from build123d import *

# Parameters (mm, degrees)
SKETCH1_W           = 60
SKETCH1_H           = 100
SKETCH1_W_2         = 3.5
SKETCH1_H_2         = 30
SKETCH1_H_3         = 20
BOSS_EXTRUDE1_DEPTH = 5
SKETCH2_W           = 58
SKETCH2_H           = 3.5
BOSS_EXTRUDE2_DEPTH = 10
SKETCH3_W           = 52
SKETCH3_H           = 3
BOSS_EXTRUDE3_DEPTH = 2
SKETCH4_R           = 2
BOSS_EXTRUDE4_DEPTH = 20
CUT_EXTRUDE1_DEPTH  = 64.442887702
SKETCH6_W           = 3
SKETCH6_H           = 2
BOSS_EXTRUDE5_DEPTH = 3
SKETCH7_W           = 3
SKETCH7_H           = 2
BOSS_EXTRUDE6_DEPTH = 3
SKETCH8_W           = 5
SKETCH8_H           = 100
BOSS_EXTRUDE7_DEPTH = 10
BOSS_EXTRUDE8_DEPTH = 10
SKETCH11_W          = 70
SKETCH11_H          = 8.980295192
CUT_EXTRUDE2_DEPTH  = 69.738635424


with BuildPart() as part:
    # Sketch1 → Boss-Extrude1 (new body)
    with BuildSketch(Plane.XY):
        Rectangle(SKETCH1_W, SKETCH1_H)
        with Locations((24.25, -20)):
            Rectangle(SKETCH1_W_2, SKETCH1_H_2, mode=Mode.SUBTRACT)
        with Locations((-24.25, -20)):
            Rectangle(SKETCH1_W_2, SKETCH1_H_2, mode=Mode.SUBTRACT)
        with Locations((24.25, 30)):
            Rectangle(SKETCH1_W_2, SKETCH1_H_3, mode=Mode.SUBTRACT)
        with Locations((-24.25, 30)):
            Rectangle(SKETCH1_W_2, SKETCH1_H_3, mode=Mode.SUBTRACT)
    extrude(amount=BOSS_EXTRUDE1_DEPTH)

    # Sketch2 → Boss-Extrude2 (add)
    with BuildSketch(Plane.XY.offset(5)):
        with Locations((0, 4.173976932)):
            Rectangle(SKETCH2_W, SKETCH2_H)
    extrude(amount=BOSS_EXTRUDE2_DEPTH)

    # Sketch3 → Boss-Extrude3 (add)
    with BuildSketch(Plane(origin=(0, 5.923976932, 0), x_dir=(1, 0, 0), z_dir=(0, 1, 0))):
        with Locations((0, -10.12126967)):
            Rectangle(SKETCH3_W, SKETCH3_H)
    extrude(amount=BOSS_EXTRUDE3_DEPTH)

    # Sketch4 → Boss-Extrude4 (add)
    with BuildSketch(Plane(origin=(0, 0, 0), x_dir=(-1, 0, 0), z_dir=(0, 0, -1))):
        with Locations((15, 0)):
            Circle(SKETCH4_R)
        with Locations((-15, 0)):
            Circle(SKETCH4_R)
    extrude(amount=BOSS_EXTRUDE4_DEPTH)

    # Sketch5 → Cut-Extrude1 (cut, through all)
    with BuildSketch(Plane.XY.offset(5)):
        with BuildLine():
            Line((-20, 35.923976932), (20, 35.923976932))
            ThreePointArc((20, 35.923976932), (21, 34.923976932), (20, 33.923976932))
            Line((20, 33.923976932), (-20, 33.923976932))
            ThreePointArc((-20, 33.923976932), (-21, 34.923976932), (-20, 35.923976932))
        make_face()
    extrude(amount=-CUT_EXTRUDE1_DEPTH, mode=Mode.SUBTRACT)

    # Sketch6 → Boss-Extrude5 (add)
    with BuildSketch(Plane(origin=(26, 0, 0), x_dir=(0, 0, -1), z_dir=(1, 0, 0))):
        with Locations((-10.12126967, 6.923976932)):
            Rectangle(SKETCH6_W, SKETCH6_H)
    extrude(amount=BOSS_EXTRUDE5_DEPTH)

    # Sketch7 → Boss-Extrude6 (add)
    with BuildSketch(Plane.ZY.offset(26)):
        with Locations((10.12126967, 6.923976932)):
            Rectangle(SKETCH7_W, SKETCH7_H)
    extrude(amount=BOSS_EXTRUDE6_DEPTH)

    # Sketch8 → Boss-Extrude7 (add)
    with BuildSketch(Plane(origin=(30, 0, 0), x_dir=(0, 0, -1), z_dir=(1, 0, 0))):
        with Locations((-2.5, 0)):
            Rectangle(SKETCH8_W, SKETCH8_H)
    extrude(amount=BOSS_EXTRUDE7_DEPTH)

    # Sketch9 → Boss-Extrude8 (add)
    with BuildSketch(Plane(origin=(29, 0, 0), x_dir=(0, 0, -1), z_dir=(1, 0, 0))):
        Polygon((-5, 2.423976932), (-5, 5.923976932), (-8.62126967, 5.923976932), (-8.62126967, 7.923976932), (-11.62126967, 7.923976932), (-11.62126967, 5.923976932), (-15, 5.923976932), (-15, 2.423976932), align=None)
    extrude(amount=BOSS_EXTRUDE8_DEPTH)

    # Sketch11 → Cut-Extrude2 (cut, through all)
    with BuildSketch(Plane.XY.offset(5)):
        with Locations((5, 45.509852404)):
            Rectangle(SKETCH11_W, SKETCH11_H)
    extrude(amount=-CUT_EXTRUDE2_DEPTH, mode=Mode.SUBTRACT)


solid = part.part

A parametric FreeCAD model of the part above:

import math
import FreeCAD as App
import Part
import Sketcher


def add_polygon(sketch, points):
    """Adds a closed chain of lines whose ends are joined by coincident constraints."""
    first, n = sketch.GeometryCount, len(points)
    for a, b in zip(points, points[1:] + points[:1]):
        sketch.addGeometry(Part.LineSegment(App.Vector(*a, 0), App.Vector(*b, 0)), False)
    for i in range(n):
        sketch.addConstraint(Sketcher.Constraint("Coincident", first + i, 2, first + (i + 1) % n, 1))

doc = App.newDocument("Part")
body = doc.addObject("PartDesign::Body", "Body")

sketch1 = doc.addObject("Sketcher::SketchObject", "Sketch")
body.addObject(sketch1)
sketch1.AttachmentSupport = (doc.XY_Plane, [""])
sketch1.MapMode = "FlatFace"
add_polygon(sketch1, [(-30, 50), (-30, -50), (30, -50), (30, 50)])
add_polygon(sketch1, [(-22.5, -35), (-26, -35), (-26, -5), (-22.5, -5)])
add_polygon(sketch1, [(26, -35), (22.5, -35), (22.5, -5), (26, -5)])
add_polygon(sketch1, [(-22.5, 20), (-26, 20), (-26, 40), (-22.5, 40)])
add_polygon(sketch1, [(26, 20), (22.5, 20), (22.5, 40), (26, 40)])
sketch1.addConstraint([
    Sketcher.Constraint("Vertical", 0),
    Sketcher.Constraint("Horizontal", 1),
    Sketcher.Constraint("Vertical", 2),
    Sketcher.Constraint("Horizontal", 3),
    Sketcher.Constraint("Horizontal", 4),
    Sketcher.Constraint("Vertical", 5),
    Sketcher.Constraint("Horizontal", 6),
    Sketcher.Constraint("Vertical", 7),
    Sketcher.Constraint("Horizontal", 8),
    Sketcher.Constraint("Vertical", 9),
    Sketcher.Constraint("Horizontal", 10),
    Sketcher.Constraint("Vertical", 11),
    Sketcher.Constraint("Horizontal", 12),
    Sketcher.Constraint("Vertical", 13),
    Sketcher.Constraint("Horizontal", 14),
    Sketcher.Constraint("Vertical", 15),
    Sketcher.Constraint("Horizontal", 16),
    Sketcher.Constraint("Vertical", 17),
    Sketcher.Constraint("Horizontal", 18),
    Sketcher.Constraint("Vertical", 19),
    Sketcher.Constraint("Symmetric", 0, 2, 2, 2, -1, 1),
    Sketcher.Constraint("Symmetric", 7, 2, 8, 2, -2),
    Sketcher.Constraint("Symmetric", 5, 2, 10, 2, -2),
    Sketcher.Constraint("Symmetric", 15, 2, 16, 2, -2),
    Sketcher.Constraint("Symmetric", 13, 2, 18, 2, -2),
    Sketcher.Constraint("Vertical", 5, 2, 12, 2),
    Sketcher.Constraint("Vertical", 7, 2, 14, 2),
    Sketcher.Constraint("DistanceX", 1, 1, 1, 2, 60.0),
    Sketcher.Constraint("DistanceY", 0, 2, 0, 1, 100.0),
    Sketcher.Constraint("DistanceY", 5, 1, 5, 2, 30.0),
    Sketcher.Constraint("DistanceY", 13, 1, 13, 2, 20.0),
    Sketcher.Constraint("DistanceX", 4, 2, 4, 1, 3.5),
    Sketcher.Constraint("DistanceX", 4, 2, -1, 1, 26.0),
    Sketcher.Constraint("DistanceY", 4, 2, -1, 1, 35.0),
    Sketcher.Constraint("DistanceY", -1, 1, 12, 2, 20.0),
])
pad1 = doc.addObject("PartDesign::Pad", "Pad")
body.addObject(pad1)
pad1.Profile = sketch1
pad1.Length = 5

sketch2 = doc.addObject("Sketcher::SketchObject", "Sketch001")
body.addObject(sketch2)
sketch2.AttachmentSupport = (doc.XY_Plane, [""])
sketch2.MapMode = "FlatFace"
sketch2.AttachmentOffset = App.Placement(App.Vector(0, 0, 5), App.Rotation())
add_polygon(sketch2, [(-29, 5.923977), (-29, 2.423977), (29, 2.423977), (29, 5.923977)])
sketch2.addConstraint([
    Sketcher.Constraint("Vertical", 0),
    Sketcher.Constraint("Horizontal", 1),
    Sketcher.Constraint("Vertical", 2),
    Sketcher.Constraint("Horizontal", 3),
    Sketcher.Constraint("DistanceX", 1, 1, 1, 2, 58.0),
    Sketcher.Constraint("DistanceY", 0, 2, 0, 1, 3.5),
    Sketcher.Constraint("DistanceX", 0, 2, -1, 1, 29.0),
    Sketcher.Constraint("DistanceY", -1, 1, 0, 2, 2.423977),
])
pad2 = doc.addObject("PartDesign::Pad", "Pad001")
body.addObject(pad2)
pad2.Profile = sketch2
pad2.Length = 10

sketch3 = doc.addObject("Sketcher::SketchObject", "Sketch002")
body.addObject(sketch3)
sketch3.AttachmentSupport = (doc.XZ_Plane, [""])
sketch3.MapMode = "FlatFace"
sketch3.AttachmentOffset = App.Placement(App.Vector(0, 0, -5.923977), App.Rotation())
add_polygon(sketch3, [(-26, 8.62127), (-26, 11.62127), (26, 11.62127), (26, 8.62127)])
sketch3.addConstraint([
    Sketcher.Constraint("Vertical", 0),
    Sketcher.Constraint("Horizontal", 1),
    Sketcher.Constraint("Vertical", 2),
    Sketcher.Constraint("Horizontal", 3),
    Sketcher.Constraint("DistanceX", 1, 1, 1, 2, 52.0),
    Sketcher.Constraint("DistanceY", 0, 1, 0, 2, 3.0),
    Sketcher.Constraint("DistanceX", 0, 2, -1, 1, 26.0),
    Sketcher.Constraint("DistanceY", -1, 1, 0, 2, 11.62127),
])
pad3 = doc.addObject("PartDesign::Pad", "Pad002")
body.addObject(pad3)
pad3.Profile = sketch3
pad3.Length = 2
pad3.Reversed = True

sketch4 = doc.addObject("Sketcher::SketchObject", "Sketch003")
body.addObject(sketch4)
sketch4.AttachmentSupport = (doc.XY_Plane, [""])
sketch4.MapMode = "FlatFace"
sketch4.addGeometry([
    Part.Circle(App.Vector(-15, 0, 0), App.Vector(0, 0, 1), 2),
    Part.Circle(App.Vector(15, 0, 0), App.Vector(0, 0, 1), 2),
], False)
sketch4.addConstraint([
    Sketcher.Constraint("Equal", 0, 1),
    Sketcher.Constraint("Symmetric", 0, 3, 1, 3, -1, 1),
    Sketcher.Constraint("PointOnObject", 0, 3, -1),
    Sketcher.Constraint("Diameter", 0, 4.0),
    Sketcher.Constraint("DistanceX", 0, 3, -1, 1, 15.0),
])
pad4 = doc.addObject("PartDesign::Pad", "Pad003")
body.addObject(pad4)
pad4.Profile = sketch4
pad4.Length = 20
pad4.Reversed = True

sketch5 = doc.addObject("Sketcher::SketchObject", "Sketch004")
body.addObject(sketch5)
sketch5.AttachmentSupport = (doc.XY_Plane, [""])
sketch5.MapMode = "FlatFace"
sketch5.AttachmentOffset = App.Placement(App.Vector(0, 0, 5), App.Rotation())
sketch5.addGeometry([
    Part.LineSegment(App.Vector(20, 35.923977, 0), App.Vector(-20, 35.923977, 0)),
    Part.ArcOfCircle(Part.Circle(App.Vector(-20, 34.923977, 0), App.Vector(0, 0, 1), 1), math.radians(90), math.radians(270)),
    Part.LineSegment(App.Vector(-20, 33.923977, 0), App.Vector(20, 33.923977, 0)),
    Part.ArcOfCircle(Part.Circle(App.Vector(20, 34.923977, 0), App.Vector(0, 0, 1), 1), math.radians(-90), math.radians(90)),
], False)
sketch5.addConstraint([
    Sketcher.Constraint("Tangent", 0, 2, 1, 1),
    Sketcher.Constraint("Tangent", 1, 2, 2, 1),
    Sketcher.Constraint("Tangent", 2, 2, 3, 1),
    Sketcher.Constraint("Tangent", 3, 2, 0, 1),
    Sketcher.Constraint("Horizontal", 0),
    Sketcher.Constraint("Horizontal", 2),
    Sketcher.Constraint("Radius", 1, 1.0),
    Sketcher.Constraint("DistanceX", 0, 2, 0, 1, 40.0),
    Sketcher.Constraint("DistanceX", 1, 3, -1, 1, 20.0),
    Sketcher.Constraint("DistanceY", -1, 1, 1, 3, 34.923977),
])
pocket1 = doc.addObject("PartDesign::Pocket", "Pocket")
body.addObject(pocket1)
pocket1.Profile = sketch5
pocket1.Type = "ThroughAll"

sketch6 = doc.addObject("Sketcher::SketchObject", "Sketch005")
body.addObject(sketch6)
sketch6.AttachmentSupport = (doc.YZ_Plane, [""])
sketch6.MapMode = "FlatFace"
sketch6.AttachmentOffset = App.Placement(App.Vector(0, 0, 26), App.Rotation())
add_polygon(sketch6, [(7.923977, 11.62127), (5.923977, 11.62127), (5.923977, 8.62127), (7.923977, 8.62127)])
sketch6.addConstraint([
    Sketcher.Constraint("Horizontal", 0),
    Sketcher.Constraint("Vertical", 1),
    Sketcher.Constraint("Horizontal", 2),
    Sketcher.Constraint("Vertical", 3),
    Sketcher.Constraint("DistanceX", 0, 2, 0, 1, 2.0),
    Sketcher.Constraint("DistanceY", 1, 2, 1, 1, 3.0),
    Sketcher.Constraint("DistanceY", -1, 1, 0, 2, 11.62127),
    Sketcher.Constraint("DistanceX", -1, 1, 0, 2, 5.923977),
])
pad5 = doc.addObject("PartDesign::Pad", "Pad004")
body.addObject(pad5)
pad5.Profile = sketch6
pad5.Length = 3

sketch7 = doc.addObject("Sketcher::SketchObject", "Sketch006")
body.addObject(sketch7)
sketch7.AttachmentSupport = (doc.YZ_Plane, [""])
sketch7.MapMode = "FlatFace"
sketch7.AttachmentOffset = App.Placement(App.Vector(0, 0, -26), App.Rotation())
add_polygon(sketch7, [(7.923977, 8.62127), (5.923977, 8.62127), (5.923977, 11.62127), (7.923977, 11.62127)])
sketch7.addConstraint([
    Sketcher.Constraint("Horizontal", 0),
    Sketcher.Constraint("Vertical", 1),
    Sketcher.Constraint("Horizontal", 2),
    Sketcher.Constraint("Vertical", 3),
    Sketcher.Constraint("DistanceX", 0, 2, 0, 1, 2.0),
    Sketcher.Constraint("DistanceY", 1, 1, 1, 2, 3.0),
    Sketcher.Constraint("DistanceY", -1, 1, 0, 2, 8.62127),
    Sketcher.Constraint("DistanceX", -1, 1, 0, 2, 5.923977),
])
pad6 = doc.addObject("PartDesign::Pad", "Pad005")
body.addObject(pad6)
pad6.Profile = sketch7
pad6.Length = 3
pad6.Reversed = True

sketch8 = doc.addObject("Sketcher::SketchObject", "Sketch007")
body.addObject(sketch8)
sketch8.AttachmentSupport = (doc.YZ_Plane, [""])
sketch8.MapMode = "FlatFace"
sketch8.AttachmentOffset = App.Placement(App.Vector(0, 0, 30), App.Rotation())
add_polygon(sketch8, [(50, 5), (-50, 5), (-50, 0), (50, 0)])
sketch8.addConstraint([
    Sketcher.Constraint("Horizontal", 0),
    Sketcher.Constraint("Vertical", 1),
    Sketcher.Constraint("Horizontal", 2),
    Sketcher.Constraint("Vertical", 3),
    Sketcher.Constraint("Symmetric", 1, 2, 2, 2, -1, 1),
    Sketcher.Constraint("DistanceX", 0, 2, 0, 1, 100.0),
    Sketcher.Constraint("DistanceY", 1, 2, 1, 1, 5.0),
])
pad7 = doc.addObject("PartDesign::Pad", "Pad006")
body.addObject(pad7)
pad7.Profile = sketch8
pad7.Length = 10

sketch9 = doc.addObject("Sketcher::SketchObject", "Sketch008")
body.addObject(sketch9)
sketch9.AttachmentSupport = (doc.YZ_Plane, [""])
sketch9.MapMode = "FlatFace"
sketch9.AttachmentOffset = App.Placement(App.Vector(0, 0, 29), App.Rotation())
add_polygon(sketch9, [(2.423977, 5), (5.923977, 5), (5.923977, 8.62127), (7.923977, 8.62127), (7.923977, 11.62127), (5.923977, 11.62127), (5.923977, 15), (2.423977, 15)])
sketch9.addConstraint([
    Sketcher.Constraint("Horizontal", 0),
    Sketcher.Constraint("Vertical", 1),
    Sketcher.Constraint("Horizontal", 2),
    Sketcher.Constraint("Vertical", 3),
    Sketcher.Constraint("Horizontal", 4),
    Sketcher.Constraint("Vertical", 5),
    Sketcher.Constraint("Horizontal", 6),
    Sketcher.Constraint("Vertical", 7),
    Sketcher.Constraint("Vertical", 1, 2, 4, 2),
    Sketcher.Constraint("DistanceX", 2, 1, 2, 2, 2.0),
    Sketcher.Constraint("DistanceY", 3, 1, 3, 2, 3.0),
    Sketcher.Constraint("DistanceY", 7, 2, 7, 1, 10.0),
    Sketcher.Constraint("DistanceX", 0, 1, 0, 2, 3.5),
    Sketcher.Constraint("DistanceY", -1, 1, 0, 2, 5.0),
    Sketcher.Constraint("DistanceY", 1, 1, 1, 2, 3.62127),
    Sketcher.Constraint("DistanceX", -1, 1, 0, 2, 5.923977),
])
pad8 = doc.addObject("PartDesign::Pad", "Pad007")
body.addObject(pad8)
pad8.Profile = sketch9
pad8.Length = 10

sketch10 = doc.addObject("Sketcher::SketchObject", "Sketch009")
body.addObject(sketch10)
sketch10.AttachmentSupport = (doc.XY_Plane, [""])
sketch10.MapMode = "FlatFace"
sketch10.AttachmentOffset = App.Placement(App.Vector(0, 0, 5), App.Rotation())
add_polygon(sketch10, [(-30, 50), (-30, 41.019705), (40, 41.019705), (40, 50)])
sketch10.addConstraint([
    Sketcher.Constraint("Vertical", 0),
    Sketcher.Constraint("Horizontal", 1),
    Sketcher.Constraint("Vertical", 2),
    Sketcher.Constraint("Horizontal", 3),
    Sketcher.Constraint("DistanceX", 1, 1, 1, 2, 70.0),
    Sketcher.Constraint("DistanceX", 0, 2, -1, 1, 30.0),
    Sketcher.Constraint("DistanceY", -1, 1, 2, 2, 50.0),
    Sketcher.Constraint("DistanceY", 0, 2, 0, 1, 8.980295),
])
pocket2 = doc.addObject("PartDesign::Pocket", "Pocket001")
body.addObject(pocket2)
pocket2.Profile = sketch10
pocket2.Type = "ThroughAll"

doc.recompute()
